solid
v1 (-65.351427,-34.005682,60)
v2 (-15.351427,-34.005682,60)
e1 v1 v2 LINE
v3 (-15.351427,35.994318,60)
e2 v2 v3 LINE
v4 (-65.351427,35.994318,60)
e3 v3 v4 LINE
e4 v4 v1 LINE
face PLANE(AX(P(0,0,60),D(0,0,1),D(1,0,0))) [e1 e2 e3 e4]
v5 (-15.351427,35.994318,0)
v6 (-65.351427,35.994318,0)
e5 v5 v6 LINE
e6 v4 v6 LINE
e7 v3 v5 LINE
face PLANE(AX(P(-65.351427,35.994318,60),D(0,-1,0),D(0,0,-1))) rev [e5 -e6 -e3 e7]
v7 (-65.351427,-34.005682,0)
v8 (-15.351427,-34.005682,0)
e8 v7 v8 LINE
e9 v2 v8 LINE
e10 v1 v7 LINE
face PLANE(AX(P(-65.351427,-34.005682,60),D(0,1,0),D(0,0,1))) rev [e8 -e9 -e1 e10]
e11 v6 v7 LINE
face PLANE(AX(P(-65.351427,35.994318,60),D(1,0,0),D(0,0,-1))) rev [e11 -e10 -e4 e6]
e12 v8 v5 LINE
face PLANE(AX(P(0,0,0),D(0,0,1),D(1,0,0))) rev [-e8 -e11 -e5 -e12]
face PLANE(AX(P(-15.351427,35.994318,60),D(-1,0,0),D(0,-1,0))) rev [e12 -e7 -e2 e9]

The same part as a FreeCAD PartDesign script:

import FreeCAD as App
import Part
import Sketcher


def add_polygon(sketch, points):
    """Adds a closed chain of lines whose ends are joined by coincident constraints."""
    first, n = sketch.GeometryCount, len(points)
    for a, b in zip(points, points[1:] + points[:1]):
        sketch.addGeometry(Part.LineSegment(App.Vector(*a, 0), App.Vector(*b, 0)), False)
    for i in range(n):
        sketch.addConstraint(Sketcher.Constraint("Coincident", first + i, 2, first + (i + 1) % n, 1))

doc = App.newDocument("Part")
body = doc.addObject("PartDesign::Body", "Body")

sketch1 = doc.addObject("Sketcher::SketchObject", "Sketch")
body.addObject(sketch1)
sketch1.AttachmentSupport = (doc.XY_Plane, [""])
sketch1.MapMode = "FlatFace"
add_polygon(sketch1, [(-65, 36), (-65, -34), (-15, -34), (-15, 36)])
sketch1.addConstraint([
    Sketcher.Constraint("Vertical", 0),
    Sketcher.Constraint("Horizontal", 1),
    Sketcher.Constraint("Vertical", 2),
    Sketcher.Constraint("Horizontal", 3),
    Sketcher.Constraint("DistanceX", 1, 1, 1, 2, 50.0),
    Sketcher.Constraint("DistanceY", 0, 2, 0, 1, 70.0),
    Sketcher.Constraint("DistanceY", 0, 2, -1, 1, 34.005682),
    Sketcher.Constraint("DistanceX", 0, 2, -1, 1, 65.351427),
])
pad1 = doc.addObject("PartDesign::Pad", "Pad")
body.addObject(pad1)
pad1.Profile = sketch1
pad1.Length = 60

doc.recompute()
